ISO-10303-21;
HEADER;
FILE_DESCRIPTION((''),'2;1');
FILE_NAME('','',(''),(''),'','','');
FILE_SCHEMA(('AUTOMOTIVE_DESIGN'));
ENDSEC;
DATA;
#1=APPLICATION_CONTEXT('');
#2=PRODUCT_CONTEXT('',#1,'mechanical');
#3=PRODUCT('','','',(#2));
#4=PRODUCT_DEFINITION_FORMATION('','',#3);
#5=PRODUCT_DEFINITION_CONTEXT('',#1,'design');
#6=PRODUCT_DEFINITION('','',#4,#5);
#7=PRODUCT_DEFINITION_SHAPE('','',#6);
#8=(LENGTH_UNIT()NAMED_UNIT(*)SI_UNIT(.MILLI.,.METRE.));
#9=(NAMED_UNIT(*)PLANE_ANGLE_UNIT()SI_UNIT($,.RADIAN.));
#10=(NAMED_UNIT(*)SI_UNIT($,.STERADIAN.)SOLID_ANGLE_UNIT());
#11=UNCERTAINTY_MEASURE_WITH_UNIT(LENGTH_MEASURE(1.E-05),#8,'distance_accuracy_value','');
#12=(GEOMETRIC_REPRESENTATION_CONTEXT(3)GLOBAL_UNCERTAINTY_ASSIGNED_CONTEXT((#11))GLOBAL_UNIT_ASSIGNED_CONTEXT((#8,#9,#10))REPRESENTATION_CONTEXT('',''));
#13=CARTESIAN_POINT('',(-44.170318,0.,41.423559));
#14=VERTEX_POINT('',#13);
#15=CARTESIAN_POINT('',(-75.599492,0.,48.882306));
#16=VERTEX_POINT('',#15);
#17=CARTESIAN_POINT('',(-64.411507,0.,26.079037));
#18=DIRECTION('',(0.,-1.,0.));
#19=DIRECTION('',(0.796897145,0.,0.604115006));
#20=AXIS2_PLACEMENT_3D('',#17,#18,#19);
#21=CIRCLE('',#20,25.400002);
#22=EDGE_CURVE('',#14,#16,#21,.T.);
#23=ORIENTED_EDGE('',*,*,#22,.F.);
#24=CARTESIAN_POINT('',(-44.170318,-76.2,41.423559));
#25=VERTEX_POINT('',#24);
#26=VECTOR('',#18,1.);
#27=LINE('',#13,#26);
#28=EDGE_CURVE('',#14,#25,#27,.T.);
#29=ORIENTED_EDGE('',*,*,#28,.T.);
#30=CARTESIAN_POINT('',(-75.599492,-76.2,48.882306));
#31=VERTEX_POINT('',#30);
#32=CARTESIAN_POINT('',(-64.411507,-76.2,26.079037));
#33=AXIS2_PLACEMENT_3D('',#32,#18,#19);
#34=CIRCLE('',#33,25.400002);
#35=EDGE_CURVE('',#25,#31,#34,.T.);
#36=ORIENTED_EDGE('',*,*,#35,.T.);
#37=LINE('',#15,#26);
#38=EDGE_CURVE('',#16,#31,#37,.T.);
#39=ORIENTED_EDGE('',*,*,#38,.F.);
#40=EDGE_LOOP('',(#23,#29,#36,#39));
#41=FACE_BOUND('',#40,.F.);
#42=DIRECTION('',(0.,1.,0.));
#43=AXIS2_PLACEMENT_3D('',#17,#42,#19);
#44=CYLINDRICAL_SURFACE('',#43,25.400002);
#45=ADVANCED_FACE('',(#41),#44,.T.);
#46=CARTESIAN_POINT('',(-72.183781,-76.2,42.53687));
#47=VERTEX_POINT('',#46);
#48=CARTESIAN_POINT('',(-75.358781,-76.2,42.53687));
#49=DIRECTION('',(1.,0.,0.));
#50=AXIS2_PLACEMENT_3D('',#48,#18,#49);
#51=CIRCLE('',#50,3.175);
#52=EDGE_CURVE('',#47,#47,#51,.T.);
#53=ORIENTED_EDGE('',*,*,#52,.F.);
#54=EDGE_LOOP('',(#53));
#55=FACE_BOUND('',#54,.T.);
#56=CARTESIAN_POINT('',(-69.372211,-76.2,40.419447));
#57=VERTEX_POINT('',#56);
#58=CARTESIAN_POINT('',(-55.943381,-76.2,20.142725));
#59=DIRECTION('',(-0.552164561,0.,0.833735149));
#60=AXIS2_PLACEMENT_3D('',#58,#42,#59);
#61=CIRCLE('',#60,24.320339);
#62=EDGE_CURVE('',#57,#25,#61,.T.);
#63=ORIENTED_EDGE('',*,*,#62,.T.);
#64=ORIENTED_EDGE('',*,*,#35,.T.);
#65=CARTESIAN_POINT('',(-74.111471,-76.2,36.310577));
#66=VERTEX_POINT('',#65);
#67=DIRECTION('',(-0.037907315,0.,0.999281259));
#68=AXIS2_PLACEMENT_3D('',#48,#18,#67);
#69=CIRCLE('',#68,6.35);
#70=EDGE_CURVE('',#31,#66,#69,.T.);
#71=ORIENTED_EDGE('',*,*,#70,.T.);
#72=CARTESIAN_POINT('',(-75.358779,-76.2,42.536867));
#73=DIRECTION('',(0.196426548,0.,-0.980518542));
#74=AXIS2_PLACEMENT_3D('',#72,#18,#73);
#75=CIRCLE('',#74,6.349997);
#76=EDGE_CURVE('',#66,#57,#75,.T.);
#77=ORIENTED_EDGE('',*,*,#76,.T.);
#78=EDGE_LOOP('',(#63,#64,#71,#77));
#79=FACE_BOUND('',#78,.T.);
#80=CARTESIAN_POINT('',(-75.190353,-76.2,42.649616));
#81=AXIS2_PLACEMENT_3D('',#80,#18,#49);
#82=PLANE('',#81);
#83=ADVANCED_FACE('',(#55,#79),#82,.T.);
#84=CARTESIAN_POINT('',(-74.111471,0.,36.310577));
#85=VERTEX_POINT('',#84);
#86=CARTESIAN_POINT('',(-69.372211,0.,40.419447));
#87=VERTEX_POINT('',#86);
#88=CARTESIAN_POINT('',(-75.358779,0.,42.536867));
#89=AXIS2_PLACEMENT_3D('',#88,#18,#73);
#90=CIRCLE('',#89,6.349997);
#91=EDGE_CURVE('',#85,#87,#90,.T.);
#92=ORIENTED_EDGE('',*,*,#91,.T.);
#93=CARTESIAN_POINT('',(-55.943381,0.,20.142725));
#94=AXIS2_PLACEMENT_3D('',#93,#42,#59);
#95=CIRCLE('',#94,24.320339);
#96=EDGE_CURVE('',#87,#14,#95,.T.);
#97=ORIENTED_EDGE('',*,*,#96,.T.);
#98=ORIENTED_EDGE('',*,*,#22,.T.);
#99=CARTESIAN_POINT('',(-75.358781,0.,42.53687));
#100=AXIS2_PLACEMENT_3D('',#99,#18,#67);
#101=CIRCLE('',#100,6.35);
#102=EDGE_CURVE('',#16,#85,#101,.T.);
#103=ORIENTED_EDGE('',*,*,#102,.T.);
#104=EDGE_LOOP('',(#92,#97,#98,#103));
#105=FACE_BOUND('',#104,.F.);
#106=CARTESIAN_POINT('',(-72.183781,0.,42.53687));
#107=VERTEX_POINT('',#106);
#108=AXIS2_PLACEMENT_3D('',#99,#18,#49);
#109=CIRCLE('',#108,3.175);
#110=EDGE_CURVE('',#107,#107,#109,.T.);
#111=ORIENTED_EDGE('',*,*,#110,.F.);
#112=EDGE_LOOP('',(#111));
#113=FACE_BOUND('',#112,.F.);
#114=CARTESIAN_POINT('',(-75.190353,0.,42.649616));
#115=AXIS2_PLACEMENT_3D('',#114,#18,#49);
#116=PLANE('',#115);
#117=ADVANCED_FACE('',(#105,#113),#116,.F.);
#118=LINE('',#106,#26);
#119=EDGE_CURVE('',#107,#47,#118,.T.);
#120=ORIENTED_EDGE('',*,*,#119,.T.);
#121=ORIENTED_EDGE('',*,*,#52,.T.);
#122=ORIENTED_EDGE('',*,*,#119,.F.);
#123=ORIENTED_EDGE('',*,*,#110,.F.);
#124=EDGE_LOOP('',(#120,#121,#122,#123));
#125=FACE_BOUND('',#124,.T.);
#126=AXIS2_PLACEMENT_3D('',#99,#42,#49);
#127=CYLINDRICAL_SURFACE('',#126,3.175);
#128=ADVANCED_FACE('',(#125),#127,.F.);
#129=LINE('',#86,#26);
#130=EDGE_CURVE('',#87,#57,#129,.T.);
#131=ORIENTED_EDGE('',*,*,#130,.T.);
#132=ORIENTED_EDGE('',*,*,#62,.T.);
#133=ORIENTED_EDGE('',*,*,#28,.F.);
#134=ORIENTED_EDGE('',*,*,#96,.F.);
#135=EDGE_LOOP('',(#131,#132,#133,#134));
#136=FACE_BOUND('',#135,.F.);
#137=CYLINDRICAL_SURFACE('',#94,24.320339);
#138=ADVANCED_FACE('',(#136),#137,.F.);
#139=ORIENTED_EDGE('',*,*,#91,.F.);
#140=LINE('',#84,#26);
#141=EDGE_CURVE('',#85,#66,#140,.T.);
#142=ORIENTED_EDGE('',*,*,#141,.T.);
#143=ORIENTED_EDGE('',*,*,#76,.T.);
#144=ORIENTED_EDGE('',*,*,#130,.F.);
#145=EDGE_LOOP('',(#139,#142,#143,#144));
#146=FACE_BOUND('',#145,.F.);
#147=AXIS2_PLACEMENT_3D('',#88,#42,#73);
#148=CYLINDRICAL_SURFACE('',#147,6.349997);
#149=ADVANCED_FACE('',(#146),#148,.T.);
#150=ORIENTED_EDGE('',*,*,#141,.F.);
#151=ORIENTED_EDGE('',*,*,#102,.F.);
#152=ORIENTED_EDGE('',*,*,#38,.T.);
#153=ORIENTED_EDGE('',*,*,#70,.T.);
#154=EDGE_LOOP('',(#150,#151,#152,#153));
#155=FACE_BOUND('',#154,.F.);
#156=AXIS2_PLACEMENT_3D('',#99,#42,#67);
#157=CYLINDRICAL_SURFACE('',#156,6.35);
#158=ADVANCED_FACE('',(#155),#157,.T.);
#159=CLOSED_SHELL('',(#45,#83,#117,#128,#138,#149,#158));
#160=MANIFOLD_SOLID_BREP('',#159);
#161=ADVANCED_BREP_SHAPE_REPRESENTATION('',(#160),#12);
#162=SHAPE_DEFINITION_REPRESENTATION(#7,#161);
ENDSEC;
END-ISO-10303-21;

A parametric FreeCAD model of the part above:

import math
import FreeCAD as App
import Part
import Sketcher

V = App.Vector
Q = App.Units.Quantity

doc = App.newDocument("Part")
body = doc.addObject("PartDesign::Body", "Body")

sketch1 = body.newObject("Sketcher::SketchObject", "Sketch")
sketch1.AttachmentSupport = (doc.getObject("XZ_Plane"), [""])
sketch1.MapMode = "FlatFace"
sketch1.addGeometry(Part.ArcOfCircle(Part.Circle(V(-55.9, 20.1, 0), V(0, 0, 1), 24.3), math.radians(61), math.radians(124)), False)
sketch1.addGeometry(Part.ArcOfCircle(Part.Circle(V(-64.4, 26.1, 0), V(0, 0, 1), 25.4), math.radians(37), math.radians(116)), False)
sketch1.addGeometry(Part.ArcOfCircle(Part.Circle(V(-75.4, 42.5, 0), V(0, 0, 1), 6.4), math.radians(92), math.radians(281)), False)
sketch1.addGeometry(Part.ArcOfCircle(Part.Circle(V(-75.4, 42.5, 0), V(0, 0, 1), 6.3), math.radians(-79), math.radians(-19)), False)
sketch1.addGeometry(Part.Circle(V(-75.4, 42.5, 0), V(0, 0, 1), 3.2), False)
sketch1.addConstraint(Sketcher.Constraint("Coincident", 0, 1, 1, 1))
sketch1.addConstraint(Sketcher.Constraint("Coincident", 1, 2, 2, 1))
sketch1.addConstraint(Sketcher.Constraint("Tangent", 2, 2, 3, 1))
sketch1.addConstraint(Sketcher.Constraint("Coincident", 3, 2, 0, 2))
sketch1.addConstraint(Sketcher.Constraint("Coincident", 4, 3, 2, 3))
sketch1.addConstraint(Sketcher.Constraint("Radius", 1, Q("1.0000001 in")))
sketch1.addConstraint(Sketcher.Constraint("Diameter", 4, Q("0.25 in")))
sketch1.addConstraint(Sketcher.Constraint("Radius", 2, Q("0.25 in")))
sketch1.addConstraint(Sketcher.Constraint("Radius", 3, Q("0.2499999 in")))
sketch1.addConstraint(Sketcher.Constraint("Radius", 0, Q("24.320339 mm")))
sketch1.addConstraint(Sketcher.Constraint("DistanceX", 2, 3, 0, 3, Q("19.415399 mm")))
sketch1.addConstraint(Sketcher.Constraint("DistanceX", 0, 3, -1, 1, Q("55.943381 mm")))
sketch1.addConstraint(Sketcher.Constraint("DistanceY", -1, 1, 2, 3, Q("42.53687 mm")))
sketch1.addConstraint(Sketcher.Constraint("DistanceX", 0, 1, -1, 1, Q("44.170318 mm")))
sketch1.addConstraint(Sketcher.Constraint("DistanceY", -1, 1, 0, 1, Q("41.423559 mm")))
sketch1.addConstraint(Sketcher.Constraint("DistanceX", 1, 2, -1, 1, Q("75.599492 mm")))
sketch1.addConstraint(Sketcher.Constraint("DistanceX", 2, 2, -1, 1, Q("74.111471 mm")))
pad1 = body.newObject("PartDesign::Pad", "Pad")
pad1.Profile = sketch1
pad1.Length = Q("3 in")

doc.recompute()
